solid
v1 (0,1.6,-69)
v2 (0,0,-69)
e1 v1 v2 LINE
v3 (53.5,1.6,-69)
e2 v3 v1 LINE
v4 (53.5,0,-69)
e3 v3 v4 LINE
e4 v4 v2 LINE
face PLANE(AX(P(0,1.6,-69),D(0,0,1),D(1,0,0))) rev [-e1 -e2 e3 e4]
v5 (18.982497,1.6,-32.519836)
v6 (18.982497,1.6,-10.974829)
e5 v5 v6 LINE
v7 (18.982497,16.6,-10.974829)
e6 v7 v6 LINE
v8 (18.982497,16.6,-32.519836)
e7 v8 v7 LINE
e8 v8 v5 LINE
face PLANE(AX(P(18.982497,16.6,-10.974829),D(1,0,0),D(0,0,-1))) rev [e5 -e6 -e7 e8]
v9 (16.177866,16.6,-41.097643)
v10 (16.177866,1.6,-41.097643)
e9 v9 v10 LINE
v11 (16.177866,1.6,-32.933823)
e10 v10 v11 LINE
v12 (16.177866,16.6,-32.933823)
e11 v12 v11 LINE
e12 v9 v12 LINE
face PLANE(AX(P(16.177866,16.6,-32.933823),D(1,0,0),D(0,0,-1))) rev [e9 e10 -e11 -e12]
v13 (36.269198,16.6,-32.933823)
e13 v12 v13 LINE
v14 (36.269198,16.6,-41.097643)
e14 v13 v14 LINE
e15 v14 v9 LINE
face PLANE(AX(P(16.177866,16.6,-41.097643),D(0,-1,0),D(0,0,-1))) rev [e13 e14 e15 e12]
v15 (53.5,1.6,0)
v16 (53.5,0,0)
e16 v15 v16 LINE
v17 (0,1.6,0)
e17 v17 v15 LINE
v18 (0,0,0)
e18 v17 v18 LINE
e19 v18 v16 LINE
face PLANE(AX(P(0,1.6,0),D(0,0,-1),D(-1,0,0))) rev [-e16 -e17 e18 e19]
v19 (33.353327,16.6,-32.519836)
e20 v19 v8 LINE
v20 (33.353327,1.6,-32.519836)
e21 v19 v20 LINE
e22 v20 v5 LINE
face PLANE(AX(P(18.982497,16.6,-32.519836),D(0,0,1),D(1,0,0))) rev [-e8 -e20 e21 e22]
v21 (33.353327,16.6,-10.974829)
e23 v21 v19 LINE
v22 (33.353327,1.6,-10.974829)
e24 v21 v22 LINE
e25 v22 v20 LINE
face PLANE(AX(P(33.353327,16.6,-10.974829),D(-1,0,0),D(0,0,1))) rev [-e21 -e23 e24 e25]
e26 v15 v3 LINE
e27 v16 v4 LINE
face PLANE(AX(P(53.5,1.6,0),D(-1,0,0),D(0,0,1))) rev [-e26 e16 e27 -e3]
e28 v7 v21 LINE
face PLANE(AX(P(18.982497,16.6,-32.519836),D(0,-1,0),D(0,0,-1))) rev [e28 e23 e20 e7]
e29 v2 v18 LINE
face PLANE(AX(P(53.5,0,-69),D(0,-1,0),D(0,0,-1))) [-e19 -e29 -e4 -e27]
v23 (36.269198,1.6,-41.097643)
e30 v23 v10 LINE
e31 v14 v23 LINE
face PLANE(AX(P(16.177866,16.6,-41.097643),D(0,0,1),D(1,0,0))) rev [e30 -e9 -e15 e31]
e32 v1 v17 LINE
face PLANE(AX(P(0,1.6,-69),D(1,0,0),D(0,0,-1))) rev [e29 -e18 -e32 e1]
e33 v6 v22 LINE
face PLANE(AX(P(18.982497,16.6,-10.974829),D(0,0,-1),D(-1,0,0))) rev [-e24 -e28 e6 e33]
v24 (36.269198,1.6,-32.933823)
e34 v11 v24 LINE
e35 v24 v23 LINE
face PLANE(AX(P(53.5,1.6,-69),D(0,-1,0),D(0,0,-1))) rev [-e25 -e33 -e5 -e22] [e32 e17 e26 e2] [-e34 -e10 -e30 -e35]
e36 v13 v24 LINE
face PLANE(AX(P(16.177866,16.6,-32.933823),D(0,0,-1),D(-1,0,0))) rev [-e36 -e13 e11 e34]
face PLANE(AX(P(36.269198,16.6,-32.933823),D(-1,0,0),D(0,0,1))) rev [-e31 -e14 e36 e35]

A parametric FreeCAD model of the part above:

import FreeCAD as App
import Part
import Sketcher
from FreeCAD import Vector
Q = App.Units.Quantity


def add_polygon(sketch, points):
    """Adds a closed chain of lines whose ends are joined by coincident constraints."""
    first, n = sketch.GeometryCount, len(points)
    for a, b in zip(points, points[1:] + points[:1]):
        sketch.addGeometry(Part.LineSegment(App.Vector(*a, 0), App.Vector(*b, 0)), False)
    for i in range(n):
        sketch.addConstraint(Sketcher.Constraint("Coincident", first + i, 2, first + (i + 1) % n, 1))

doc = App.newDocument("Part")
body = doc.addObject("PartDesign::Body", "Body")

# Sketch on XZ plane
sketch1 = body.newObject("Sketcher::SketchObject", "Sketch")
sketch1.AttachmentSupport = (doc.getObject("XZ_Plane"), [""])
sketch1.MapMode = "FlatFace"
add_polygon(sketch1, [(0, -69), (0, 0), (53.5, 0), (53.5, -69)])  # lines 0-3
sketch1.addConstraint([
    Sketcher.Constraint("Vertical", 0),
    Sketcher.Constraint("Horizontal", 1),
    Sketcher.Constraint("Vertical", 2),
    Sketcher.Constraint("Horizontal", 3),
    Sketcher.Constraint("Coincident", 0, 2, -1, 1),
    Sketcher.Constraint("DistanceY", 0, 1, 0, 2, Q("69 mm")),
    Sketcher.Constraint("DistanceX", 1, 1, 1, 2, Q("53.5 mm")),
])
pad1 = body.newObject("PartDesign::Pad", "Pad")
pad1.Profile = sketch1
pad1.Length = 1.6
pad1.Reversed = True

# Sketch on XZ plane
sketch2 = body.newObject("Sketcher::SketchObject", "Sketch001")
sketch2.AttachmentSupport = (doc.getObject("XZ_Plane"), [""])
sketch2.MapMode = "FlatFace"
sketch2.AttachmentOffset = App.Placement(Vector(0, 0, -1.6), App.Rotation())
add_polygon(sketch2, [(18.982497, -32.519836), (18.982497, -10.974829), (33.353327, -10.974829), (33.353327, -32.519836)])  # lines 0-3
add_polygon(sketch2, [(16.177866, -41.097643), (16.177866, -32.933823), (36.269198, -32.933823), (36.269198, -41.097643)])  # lines 4-7
sketch2.addConstraint([
    Sketcher.Constraint("Vertical", 0),
    Sketcher.Constraint("Horizontal", 1),
    Sketcher.Constraint("Vertical", 2),
    Sketcher.Constraint("Horizontal", 3),
    Sketcher.Constraint("Vertical", 4),
    Sketcher.Constraint("Horizontal", 5),
    Sketcher.Constraint("Vertical", 6),
    Sketcher.Constraint("Horizontal", 7),
    Sketcher.Constraint("DistanceX", 1, 1, 1, 2, Q("14.370829 mm")),
    Sketcher.Constraint("DistanceY", 4, 1, 4, 2, Q("8.163819 mm")),
    Sketcher.Constraint("DistanceX", -1, 1, 5, 2, Q("36.269198 mm")),
    Sketcher.Constraint("DistanceX", 3, 2, 5, 2, Q("17.286701 mm")),
    Sketcher.Constraint("DistanceX", 5, 1, 5, 2, Q("20.091332 mm")),
    Sketcher.Constraint("DistanceY", 0, 1, 0, 2, Q("21.545007 mm")),
    Sketcher.Constraint("DistanceY", 0, 2, -1, 1, Q("10.974829 mm")),
    Sketcher.Constraint("DistanceY", 4, 2, -1, 1, Q("32.933823 mm")),
])
pad2 = body.newObject("PartDesign::Pad", "Pad001")
pad2.Profile = sketch2
pad2.Length = 15
pad2.Reversed = True

doc.recompute()
